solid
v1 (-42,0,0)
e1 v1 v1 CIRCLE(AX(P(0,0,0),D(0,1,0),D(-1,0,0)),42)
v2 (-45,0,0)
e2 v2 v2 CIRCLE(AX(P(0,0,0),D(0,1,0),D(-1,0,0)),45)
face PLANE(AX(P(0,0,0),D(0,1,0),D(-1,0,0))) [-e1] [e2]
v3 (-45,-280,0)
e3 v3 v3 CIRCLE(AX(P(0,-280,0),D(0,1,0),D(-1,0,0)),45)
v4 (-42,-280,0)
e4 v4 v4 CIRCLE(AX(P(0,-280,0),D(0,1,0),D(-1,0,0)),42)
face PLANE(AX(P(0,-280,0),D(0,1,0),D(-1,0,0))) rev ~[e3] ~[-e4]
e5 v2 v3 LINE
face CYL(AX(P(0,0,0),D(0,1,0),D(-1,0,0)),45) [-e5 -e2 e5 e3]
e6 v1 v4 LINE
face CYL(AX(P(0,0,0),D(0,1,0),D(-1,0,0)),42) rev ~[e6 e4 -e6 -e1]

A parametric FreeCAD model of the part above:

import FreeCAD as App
import Part
import Sketcher
from FreeCAD import Vector

doc = App.newDocument("Part")
body = doc.addObject("PartDesign::Body", "Body")

# Sketch on XZ plane
sketch1 = body.newObject("Sketcher::SketchObject", "Sketch")
sketch1.AttachmentSupport = (doc.getObject("XZ_Plane"), [""])
sketch1.MapMode = "FlatFace"
sketch1.addGeometry([
    Part.Circle(Vector(0, 0, 0), Vector(0, 0, 1), 45),
    Part.Circle(Vector(0, 0, 0), Vector(0, 0, 1), 42),
], False)
sketch1.addConstraint([
    Sketcher.Constraint("Coincident", 0, 3, -1, 1),
    Sketcher.Constraint("Coincident", 1, 3, -1, 1),
    Sketcher.Constraint("Diameter", 0, 90.0),
    Sketcher.Constraint("Diameter", 1, 84.0),
])
pad1 = body.newObject("PartDesign::Pad", "Pad")
pad1.Profile = sketch1
pad1.Length = 280

doc.recompute()
